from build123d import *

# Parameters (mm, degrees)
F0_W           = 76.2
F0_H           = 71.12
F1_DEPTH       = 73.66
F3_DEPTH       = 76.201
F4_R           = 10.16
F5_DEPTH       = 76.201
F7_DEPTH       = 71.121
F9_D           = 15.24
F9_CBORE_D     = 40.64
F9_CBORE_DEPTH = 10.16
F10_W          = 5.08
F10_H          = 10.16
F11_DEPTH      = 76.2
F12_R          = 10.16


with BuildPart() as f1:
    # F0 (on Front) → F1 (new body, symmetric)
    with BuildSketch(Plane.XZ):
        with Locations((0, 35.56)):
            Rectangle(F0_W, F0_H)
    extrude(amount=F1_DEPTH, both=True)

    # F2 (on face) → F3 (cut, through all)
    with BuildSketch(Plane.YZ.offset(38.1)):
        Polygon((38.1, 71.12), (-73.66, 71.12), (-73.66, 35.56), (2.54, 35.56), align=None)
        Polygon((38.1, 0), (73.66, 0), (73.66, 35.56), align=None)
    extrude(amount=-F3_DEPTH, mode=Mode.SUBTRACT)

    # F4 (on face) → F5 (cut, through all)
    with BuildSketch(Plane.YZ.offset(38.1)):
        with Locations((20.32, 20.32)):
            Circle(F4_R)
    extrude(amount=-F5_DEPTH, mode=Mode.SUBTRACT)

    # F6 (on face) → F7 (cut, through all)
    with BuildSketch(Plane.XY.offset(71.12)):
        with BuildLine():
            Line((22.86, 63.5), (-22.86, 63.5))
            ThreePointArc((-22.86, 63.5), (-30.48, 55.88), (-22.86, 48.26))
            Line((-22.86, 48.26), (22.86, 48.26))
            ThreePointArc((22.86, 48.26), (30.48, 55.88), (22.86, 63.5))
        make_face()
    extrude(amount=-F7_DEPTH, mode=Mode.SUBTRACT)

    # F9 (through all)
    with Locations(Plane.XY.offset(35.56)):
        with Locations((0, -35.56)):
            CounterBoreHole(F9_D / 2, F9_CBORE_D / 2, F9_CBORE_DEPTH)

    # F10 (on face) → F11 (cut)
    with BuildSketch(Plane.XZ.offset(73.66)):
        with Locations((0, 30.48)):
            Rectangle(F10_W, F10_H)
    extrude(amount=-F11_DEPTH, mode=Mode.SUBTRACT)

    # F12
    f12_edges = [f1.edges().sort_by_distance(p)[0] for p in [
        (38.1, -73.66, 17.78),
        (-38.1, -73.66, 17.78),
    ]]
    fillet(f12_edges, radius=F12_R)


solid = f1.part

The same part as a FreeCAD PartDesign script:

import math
import FreeCAD as App
import Part
import Sketcher

V = App.Vector
Q = App.Units.Quantity


def edges_at(feature, points):
    """Names of the edges that pass closest to the given points."""
    edges = feature.Shape.Edges
    near = lambda p: min(range(len(edges)), key=lambda i: edges[i].distToShape(Part.Vertex(*p))[0])
    return sorted({f"Edge{near(p) + 1}" for p in points})


def add_polygon(sketch, points):
    """Adds a closed chain of lines whose ends are joined by coincident constraints."""
    first, n = sketch.GeometryCount, len(points)
    for a, b in zip(points, points[1:] + points[:1]):
        sketch.addGeometry(Part.LineSegment(App.Vector(*a, 0), App.Vector(*b, 0)), False)
    for i in range(n):
        sketch.addConstraint(Sketcher.Constraint("Coincident", first + i, 2, first + (i + 1) % n, 1))

doc = App.newDocument("Part")
body = doc.addObject("PartDesign::Body", "Body")

# Sketch on XZ plane
sketch1 = doc.addObject("Sketcher::SketchObject", "Sketch")
body.addObject(sketch1)
sketch1.AttachmentSupport = (doc.XZ_Plane, [""])
sketch1.MapMode = "FlatFace"
add_polygon(sketch1, [(-38.1, 71.12), (-38.1, 0), (38.1, 0), (38.1, 71.12)])  # lines 0-3
sketch1.addConstraint(Sketcher.Constraint("Vertical", 0))
sketch1.addConstraint(Sketcher.Constraint("Horizontal", 1))
sketch1.addConstraint(Sketcher.Constraint("Vertical", 2))
sketch1.addConstraint(Sketcher.Constraint("Horizontal", 3))
sketch1.addConstraint(Sketcher.Constraint("Symmetric", 0, 2, 1, 2, -1, 1))
sketch1.addConstraint(Sketcher.Constraint("DistanceX", 1, 1, 1, 2, Q("3 in")))
sketch1.addConstraint(Sketcher.Constraint("DistanceY", 0, 2, 0, 1, Q("2.8 in")))
pad1 = doc.addObject("PartDesign::Pad", "Pad")
body.addObject(pad1)
pad1.Profile = sketch1
pad1.Length = Q("5.8 in")
pad1.Midplane = True

# Sketch on YZ plane
sketch2 = doc.addObject("Sketcher::SketchObject", "Sketch001")
body.addObject(sketch2)
sketch2.AttachmentSupport = (doc.YZ_Plane, [""])
sketch2.MapMode = "FlatFace"
sketch2.AttachmentOffset = App.Placement(V(0, 0, 1.5 * 25.4), App.Rotation())
add_polygon(sketch2, [(38.1, 71.12), (-73.66, 71.12), (-73.66, 35.56), (2.54, 35.56)])  # lines 0-3
add_polygon(sketch2, [(38.1, 0), (73.66, 0), (73.66, 35.56)])  # lines 4-6
sketch2.addConstraint(Sketcher.Constraint("Horizontal", 0))
sketch2.addConstraint(Sketcher.Constraint("Vertical", 1))
sketch2.addConstraint(Sketcher.Constraint("Horizontal", 2))
sketch2.addConstraint(Sketcher.Constraint("Horizontal", 4))
sketch2.addConstraint(Sketcher.Constraint("Vertical", 5))
sketch2.addConstraint(Sketcher.Constraint("Symmetric", 1, 2, 5, 2, -2))
sketch2.addConstraint(Sketcher.Constraint("PointOnObject", 4, 2, -1))
sketch2.addConstraint(Sketcher.Constraint("Parallel", 3, 6))
sketch2.addConstraint(Sketcher.Constraint("Vertical", 3, 2, 6, 2))
sketch2.addConstraint(Sketcher.Constraint("Equal", 4, 1))
sketch2.addConstraint(Sketcher.Constraint("Equal", 1, 5))
sketch2.addConstraint(Sketcher.Constraint("DistanceX", 2, 1, 2, 2, Q("3 in")))
sketch2.addConstraint(Sketcher.Constraint("DistanceX", 0, 2, 0, 1, Q("4.4 in")))
pocket1 = doc.addObject("PartDesign::Pocket", "Pocket")
body.addObject(pocket1)
pocket1.Profile = sketch2
pocket1.Type = "ThroughAll"

# Sketch on YZ plane
sketch3 = doc.addObject("Sketcher::SketchObject", "Sketch002")
body.addObject(sketch3)
sketch3.AttachmentSupport = (doc.YZ_Plane, [""])
sketch3.MapMode = "FlatFace"
sketch3.AttachmentOffset = App.Placement(V(0, 0, 1.5 * 25.4), App.Rotation())
sketch3.addGeometry(Part.Circle(V(20.32, 20.32, 0), V(0, 0, 1), 10.16), False)
sketch3.addConstraint(Sketcher.Constraint("Diameter", 0, Q("0.8 in")))
sketch3.addConstraint(Sketcher.Constraint("DistanceX", -1, 1, 0, 3, Q("0.8 in")))
sketch3.addConstraint(Sketcher.Constraint("DistanceY", -1, 1, 0, 3, Q("0.8 in")))
pocket2 = doc.addObject("PartDesign::Pocket", "Pocket001")
body.addObject(pocket2)
pocket2.Profile = sketch3
pocket2.Type = "ThroughAll"

# Sketch on XY plane
sketch4 = doc.addObject("Sketcher::SketchObject", "Sketch003")
body.addObject(sketch4)
sketch4.AttachmentSupport = (doc.XY_Plane, [""])
sketch4.MapMode = "FlatFace"
sketch4.AttachmentOffset = App.Placement(V(0, 0, 2.8 * 25.4), App.Rotation())
sketch4.addGeometry(Part.LineSegment(V(22.86, 63.5, 0), V(-22.86, 63.5, 0)), False)
sketch4.addGeometry(Part.ArcOfCircle(Part.Circle(V(-22.86, 55.88, 0), V(0, 0, 1), 7.62), math.radians(90), math.radians(270)), False)
sketch4.addGeometry(Part.LineSegment(V(-22.86, 48.26, 0), V(22.86, 48.26, 0)), False)
sketch4.addGeometry(Part.ArcOfCircle(Part.Circle(V(22.86, 55.88, 0), V(0, 0, 1), 7.62), math.radians(-90), math.radians(90)), False)
sketch4.addConstraint(Sketcher.Constraint("Tangent", 0, 2, 1, 1))
sketch4.addConstraint(Sketcher.Constraint("Tangent", 1, 2, 2, 1))
sketch4.addConstraint(Sketcher.Constraint("Tangent", 2, 2, 3, 1))
sketch4.addConstraint(Sketcher.Constraint("Tangent", 3, 2, 0, 1))
sketch4.addConstraint(Sketcher.Constraint("Horizontal", 0))
sketch4.addConstraint(Sketcher.Constraint("Horizontal", 2))
sketch4.addConstraint(Sketcher.Constraint("Radius", 1, Q("0.3 in")))
sketch4.addConstraint(Sketcher.Constraint("DistanceX", 0, 2, 0, 1, Q("1.8 in")))
sketch4.addConstraint(Sketcher.Constraint("DistanceX", 1, 3, -1, 1, Q("0.9 in")))
sketch4.addConstraint(Sketcher.Constraint("DistanceY", -1, 1, 1, 3, Q("2.2 in")))
pocket3 = doc.addObject("PartDesign::Pocket", "Pocket002")
body.addObject(pocket3)
pocket3.Profile = sketch4
pocket3.Type = "ThroughAll"

# Sketch on XY plane
sketch5 = doc.addObject("Sketcher::SketchObject", "Sketch004")
body.addObject(sketch5)
sketch5.AttachmentSupport = (doc.XY_Plane, [""])
sketch5.MapMode = "FlatFace"
sketch5.AttachmentOffset = App.Placement(V(0, 0, 1.4 * 25.4), App.Rotation())
sketch5.addGeometry(Part.Circle(V(0, -35.56, 0), V(0, 0, 1), 7.62), False)
sketch5.addConstraint(Sketcher.Constraint("PointOnObject", 0, 3, -2))
sketch5.addConstraint(Sketcher.Constraint("Diameter", 0, Q("0.6 in")))
sketch5.addConstraint(Sketcher.Constraint("DistanceY", 0, 3, -1, 1, Q("1.4 in")))
doc.recompute()
hole = doc.addObject("PartDesign::Hole", "Hole")
body.addObject(hole)
hole.Profile = sketch5
hole.ThreadType = "None"
hole.Diameter = Q("0.6 in")
hole.DepthType = "ThroughAll"
hole.HoleCutType = "Counterbore"
hole.HoleCutDiameter = Q("1.6 in")
hole.HoleCutDepth = Q("0.4 in")

# Sketch on XZ plane
sketch6 = doc.addObject("Sketcher::SketchObject", "Sketch005")
body.addObject(sketch6)
sketch6.AttachmentSupport = (doc.XZ_Plane, [""])
sketch6.MapMode = "FlatFace"
sketch6.AttachmentOffset = App.Placement(V(0, 0, 2.9 * 25.4), App.Rotation())
add_polygon(sketch6, [(-2.54, 35.56), (-2.54, 25.4), (2.54, 25.4), (2.54, 35.56)])  # lines 0-3
sketch6.addConstraint(Sketcher.Constraint("Vertical", 0))
sketch6.addConstraint(Sketcher.Constraint("Horizontal", 1))
sketch6.addConstraint(Sketcher.Constraint("Vertical", 2))
sketch6.addConstraint(Sketcher.Constraint("Horizontal", 3))
sketch6.addConstraint(Sketcher.Constraint("DistanceX", 1, 1, 1, 2, Q("0.2 in")))
sketch6.addConstraint(Sketcher.Constraint("DistanceY", 0, 2, 0, 1, Q("0.4 in")))
sketch6.addConstraint(Sketcher.Constraint("DistanceY", -1, 1, 0, 2, Q("1 in")))
sketch6.addConstraint(Sketcher.Constraint("DistanceX", 0, 2, -1, 1, Q("0.1 in")))
pocket4 = doc.addObject("PartDesign::Pocket", "Pocket003")
body.addObject(pocket4)
pocket4.Profile = sketch6
pocket4.Length = Q("3 in")
doc.recompute()

fillet = doc.addObject("PartDesign::Fillet", "Fillet")
body.addObject(fillet)
fillet.Base = (pocket4, edges_at(pocket4, [(38.1, -73.66, 17.78), (-38.1, -73.66, 17.78)]))
fillet.Radius = Q("0.4 in")

doc.recompute()
